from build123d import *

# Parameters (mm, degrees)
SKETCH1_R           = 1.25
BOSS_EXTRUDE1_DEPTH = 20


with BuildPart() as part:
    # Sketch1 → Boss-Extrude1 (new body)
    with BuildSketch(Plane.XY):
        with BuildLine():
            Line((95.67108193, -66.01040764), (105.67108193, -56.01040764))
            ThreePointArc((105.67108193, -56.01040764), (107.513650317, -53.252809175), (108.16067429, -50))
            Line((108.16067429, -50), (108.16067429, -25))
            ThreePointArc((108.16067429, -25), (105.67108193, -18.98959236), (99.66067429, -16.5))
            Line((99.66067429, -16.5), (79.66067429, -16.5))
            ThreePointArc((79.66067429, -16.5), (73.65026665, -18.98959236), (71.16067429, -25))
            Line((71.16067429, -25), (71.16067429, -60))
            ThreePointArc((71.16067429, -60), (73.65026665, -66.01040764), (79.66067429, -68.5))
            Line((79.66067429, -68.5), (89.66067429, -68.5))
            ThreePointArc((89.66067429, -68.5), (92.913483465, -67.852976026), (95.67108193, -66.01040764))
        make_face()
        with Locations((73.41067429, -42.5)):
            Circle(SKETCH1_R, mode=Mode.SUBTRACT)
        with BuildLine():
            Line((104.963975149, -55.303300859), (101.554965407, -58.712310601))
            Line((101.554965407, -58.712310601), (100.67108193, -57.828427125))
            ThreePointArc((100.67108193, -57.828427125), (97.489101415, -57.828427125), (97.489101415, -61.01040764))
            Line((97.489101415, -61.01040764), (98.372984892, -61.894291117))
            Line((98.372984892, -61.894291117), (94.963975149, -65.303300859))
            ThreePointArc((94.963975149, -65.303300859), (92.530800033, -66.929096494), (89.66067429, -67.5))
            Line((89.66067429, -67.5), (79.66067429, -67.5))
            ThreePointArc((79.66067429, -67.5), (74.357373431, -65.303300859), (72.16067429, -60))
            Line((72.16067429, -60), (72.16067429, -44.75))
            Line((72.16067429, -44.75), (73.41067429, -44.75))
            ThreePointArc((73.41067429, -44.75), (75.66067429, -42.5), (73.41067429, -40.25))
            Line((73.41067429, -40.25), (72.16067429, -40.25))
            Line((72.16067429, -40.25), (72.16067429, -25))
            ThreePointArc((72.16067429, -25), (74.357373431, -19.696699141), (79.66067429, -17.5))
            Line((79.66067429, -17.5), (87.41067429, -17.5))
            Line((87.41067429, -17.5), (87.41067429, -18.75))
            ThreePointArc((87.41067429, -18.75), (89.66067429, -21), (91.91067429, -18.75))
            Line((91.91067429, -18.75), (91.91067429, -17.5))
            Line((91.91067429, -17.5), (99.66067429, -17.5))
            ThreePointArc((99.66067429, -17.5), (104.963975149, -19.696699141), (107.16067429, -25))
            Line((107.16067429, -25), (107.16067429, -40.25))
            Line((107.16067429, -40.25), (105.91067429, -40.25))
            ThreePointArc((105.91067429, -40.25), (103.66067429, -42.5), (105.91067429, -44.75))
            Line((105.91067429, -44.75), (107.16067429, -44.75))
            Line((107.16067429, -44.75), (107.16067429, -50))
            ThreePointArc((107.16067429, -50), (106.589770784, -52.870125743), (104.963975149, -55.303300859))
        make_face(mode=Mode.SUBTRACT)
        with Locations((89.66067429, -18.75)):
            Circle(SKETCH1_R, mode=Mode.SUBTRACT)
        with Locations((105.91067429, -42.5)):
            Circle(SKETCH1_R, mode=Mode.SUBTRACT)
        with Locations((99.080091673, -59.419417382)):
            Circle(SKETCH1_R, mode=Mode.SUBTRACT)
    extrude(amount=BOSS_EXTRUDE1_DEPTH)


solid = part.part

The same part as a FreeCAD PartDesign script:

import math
import FreeCAD as App
import Part
import Sketcher

V = App.Vector

doc = App.newDocument("Part")
body = doc.addObject("PartDesign::Body", "Body")

# Sketch on XY plane
sketch1 = body.newObject("Sketcher::SketchObject", "Sketch")
sketch1.AttachmentSupport = (doc.getObject("XY_Plane"), [""])
sketch1.MapMode = "FlatFace"
sketch1.addGeometry(Part.LineSegment(V(95.671082, -66.010408, 0), V(105.671082, -56.010408, 0)), False)
sketch1.addGeometry(Part.ArcOfCircle(Part.Circle(V(99.660674, -50, 0), V(0, 0, 1), 8.5), math.radians(-45), math.radians(0)), False)
sketch1.addGeometry(Part.LineSegment(V(108.160674, -50, 0), V(108.160674, -25, 0)), False)
sketch1.addGeometry(Part.ArcOfCircle(Part.Circle(V(99.660674, -25, 0), V(0, 0, 1), 8.5), math.radians(0), math.radians(90)), False)
sketch1.addGeometry(Part.LineSegment(V(99.660674, -16.5, 0), V(79.660674, -16.5, 0)), False)
sketch1.addGeometry(Part.ArcOfCircle(Part.Circle(V(79.660674, -25, 0), V(0, 0, 1), 8.5), math.radians(90), math.radians(180)), False)
sketch1.addGeometry(Part.LineSegment(V(71.160674, -25, 0), V(71.160674, -60, 0)), False)
sketch1.addGeometry(Part.ArcOfCircle(Part.Circle(V(79.660674, -60, 0), V(0, 0, 1), 8.5), math.radians(180), math.radians(270)), False)
sketch1.addGeometry(Part.LineSegment(V(79.660674, -68.5, 0), V(89.660674, -68.5, 0)), False)
sketch1.addGeometry(Part.ArcOfCircle(Part.Circle(V(89.660674, -60, 0), V(0, 0, 1), 8.5), math.radians(-90), math.radians(-45)), False)
sketch1.addGeometry(Part.Circle(V(73.410674, -42.5, 0), V(0, 0, 1), 1.25), False)
sketch1.addGeometry(Part.Circle(V(99.080092, -59.419417, 0), V(0, 0, 1), 1.25), False)
sketch1.addGeometry(Part.Circle(V(105.910674, -42.5, 0), V(0, 0, 1), 1.25), False)
sketch1.addGeometry(Part.ArcOfCircle(Part.Circle(V(99.660674, -50, 0), V(0, 0, 1), 7.5), math.radians(-45), math.radians(0)), False)
sketch1.addGeometry(Part.LineSegment(V(104.963975, -55.303301, 0), V(101.554965, -58.712311, 0)), False)
sketch1.addGeometry(Part.LineSegment(V(101.554965, -58.712311, 0), V(100.671082, -57.828427, 0)), False)
sketch1.addGeometry(Part.ArcOfCircle(Part.Circle(V(99.080092, -59.419417, 0), V(0, 0, 1), 2.25), math.radians(45), math.radians(225)), False)
sketch1.addGeometry(Part.LineSegment(V(97.489101, -61.010408, 0), V(98.372985, -61.894291, 0)), False)
sketch1.addGeometry(Part.LineSegment(V(98.372985, -61.894291, 0), V(94.963975, -65.303301, 0)), False)
sketch1.addGeometry(Part.ArcOfCircle(Part.Circle(V(89.660674, -60, 0), V(0, 0, 1), 7.5), math.radians(-90), math.radians(-45)), False)
sketch1.addGeometry(Part.LineSegment(V(89.660674, -67.5, 0), V(79.660674, -67.5, 0)), False)
sketch1.addGeometry(Part.ArcOfCircle(Part.Circle(V(79.660674, -60, 0), V(0, 0, 1), 7.5), math.radians(180), math.radians(270)), False)
sketch1.addGeometry(Part.LineSegment(V(72.160674, -60, 0), V(72.160674, -44.75, 0)), False)
sketch1.addGeometry(Part.LineSegment(V(72.160674, -44.75, 0), V(73.410674, -44.75, 0)), False)
sketch1.addGeometry(Part.ArcOfCircle(Part.Circle(V(73.410674, -42.5, 0), V(0, 0, 1), 2.25), math.radians(-90), math.radians(90)), False)
sketch1.addGeometry(Part.LineSegment(V(73.410674, -40.25, 0), V(72.160674, -40.25, 0)), False)
sketch1.addGeometry(Part.LineSegment(V(72.160674, -40.25, 0), V(72.160674, -25, 0)), False)
sketch1.addGeometry(Part.ArcOfCircle(Part.Circle(V(79.660674, -25, 0), V(0, 0, 1), 7.5), math.radians(90), math.radians(180)), False)
sketch1.addGeometry(Part.LineSegment(V(79.660674, -17.5, 0), V(87.410674, -17.5, 0)), False)
sketch1.addGeometry(Part.LineSegment(V(87.410674, -17.5, 0), V(87.410674, -18.75, 0)), False)
sketch1.addGeometry(Part.ArcOfCircle(Part.Circle(V(89.660674, -18.75, 0), V(0, 0, 1), 2.25), math.radians(180), math.radians(360)), False)
sketch1.addGeometry(Part.LineSegment(V(91.910674, -18.75, 0), V(91.910674, -17.5, 0)), False)
sketch1.addGeometry(Part.LineSegment(V(91.910674, -17.5, 0), V(99.660674, -17.5, 0)), False)
sketch1.addGeometry(Part.ArcOfCircle(Part.Circle(V(99.660674, -25, 0), V(0, 0, 1), 7.5), math.radians(0), math.radians(90)), False)
sketch1.addGeometry(Part.LineSegment(V(107.160674, -25, 0), V(107.160674, -40.25, 0)), False)
sketch1.addGeometry(Part.LineSegment(V(107.160674, -40.25, 0), V(105.910674, -40.25, 0)), False)
sketch1.addGeometry(Part.ArcOfCircle(Part.Circle(V(105.910674, -42.5, 0), V(0, 0, 1), 2.25), math.radians(90), math.radians(270)), False)
sketch1.addGeometry(Part.LineSegment(V(105.910674, -44.75, 0), V(107.160674, -44.75, 0)), False)
sketch1.addGeometry(Part.LineSegment(V(107.160674, -44.75, 0), V(107.160674, -50, 0)), False)
sketch1.addGeometry(Part.Circle(V(89.660674, -18.75, 0), V(0, 0, 1), 1.25), False)
sketch1.addConstraint(Sketcher.Constraint("Tangent", 0, 2, 1, 1))
sketch1.addConstraint(Sketcher.Constraint("Tangent", 1, 2, 2, 1))
sketch1.addConstraint(Sketcher.Constraint("Tangent", 2, 2, 3, 1))
sketch1.addConstraint(Sketcher.Constraint("Tangent", 3, 2, 4, 1))
sketch1.addConstraint(Sketcher.Constraint("Tangent", 4, 2, 5, 1))
sketch1.addConstraint(Sketcher.Constraint("Tangent", 5, 2, 6, 1))
sketch1.addConstraint(Sketcher.Constraint("Tangent", 6, 2, 7, 1))
sketch1.addConstraint(Sketcher.Constraint("Tangent", 7, 2, 8, 1))
sketch1.addConstraint(Sketcher.Constraint("Tangent", 8, 2, 9, 1))
sketch1.addConstraint(Sketcher.Constraint("Tangent", 9, 2, 0, 1))
sketch1.addConstraint(Sketcher.Constraint("Tangent", 13, 1, 14, 1))
sketch1.addConstraint(Sketcher.Constraint("Coincident", 14, 2, 15, 1))
sketch1.addConstraint(Sketcher.Constraint("Tangent", 15, 2, 16, 1))
sketch1.addConstraint(Sketcher.Constraint("Tangent", 16, 2, 17, 1))
sketch1.addConstraint(Sketcher.Constraint("Coincident", 17, 2, 18, 1))
sketch1.addConstraint(Sketcher.Constraint("Tangent", 18, 2, 19, 2))
sketch1.addConstraint(Sketcher.Constraint("Tangent", 19, 1, 20, 1))
sketch1.addConstraint(Sketcher.Constraint("Tangent", 20, 2, 21, 2))
sketch1.addConstraint(Sketcher.Constraint("Tangent", 21, 1, 22, 1))
sketch1.addConstraint(Sketcher.Constraint("Coincident", 22, 2, 23, 1))
sketch1.addConstraint(Sketcher.Constraint("Tangent", 23, 2, 24, 1))
sketch1.addConstraint(Sketcher.Constraint("Tangent", 24, 2, 25, 1))
sketch1.addConstraint(Sketcher.Constraint("Coincident", 25, 2, 26, 1))
sketch1.addConstraint(Sketcher.Constraint("Tangent", 26, 2, 27, 2))
sketch1.addConstraint(Sketcher.Constraint("Tangent", 27, 1, 28, 1))
sketch1.addConstraint(Sketcher.Constraint("Coincident", 28, 2, 29, 1))
sketch1.addConstraint(Sketcher.Constraint("Tangent", 29, 2, 30, 1))
sketch1.addConstraint(Sketcher.Constraint("Tangent", 30, 2, 31, 1))
sketch1.addConstraint(Sketcher.Constraint("Coincident", 31, 2, 32, 1))
sketch1.addConstraint(Sketcher.Constraint("Tangent", 32, 2, 33, 2))
sketch1.addConstraint(Sketcher.Constraint("Tangent", 33, 1, 34, 1))
sketch1.addConstraint(Sketcher.Constraint("Coincident", 34, 2, 35, 1))
sketch1.addConstraint(Sketcher.Constraint("Tangent", 35, 2, 36, 1))
sketch1.addConstraint(Sketcher.Constraint("Tangent", 36, 2, 37, 1))
sketch1.addConstraint(Sketcher.Constraint("Coincident", 37, 2, 38, 1))
sketch1.addConstraint(Sketcher.Constraint("Tangent", 38, 2, 13, 2))
sketch1.addConstraint(Sketcher.Constraint("Vertical", 2))
sketch1.addConstraint(Sketcher.Constraint("Horizontal", 4))
sketch1.addConstraint(Sketcher.Constraint("Vertical", 6))
sketch1.addConstraint(Sketcher.Constraint("Horizontal", 8))
sketch1.addConstraint(Sketcher.Constraint("Horizontal", 20))
sketch1.addConstraint(Sketcher.Constraint("Vertical", 22))
sketch1.addConstraint(Sketcher.Constraint("Horizontal", 23))
sketch1.addConstraint(Sketcher.Constraint("Horizontal", 25))
sketch1.addConstraint(Sketcher.Constraint("Vertical", 26))
sketch1.addConstraint(Sketcher.Constraint("Horizontal", 28))
sketch1.addConstraint(Sketcher.Constraint("Vertical", 29))
sketch1.addConstraint(Sketcher.Constraint("Vertical", 31))
sketch1.addConstraint(Sketcher.Constraint("Horizontal", 32))
sketch1.addConstraint(Sketcher.Constraint("Vertical", 34))
sketch1.addConstraint(Sketcher.Constraint("Horizontal", 35))
sketch1.addConstraint(Sketcher.Constraint("Horizontal", 37))
sketch1.addConstraint(Sketcher.Constraint("Vertical", 38))
sketch1.addConstraint(Sketcher.Constraint("Coincident", 13, 3, 1, 3))
sketch1.addConstraint(Sketcher.Constraint("Coincident", 16, 3, 11, 3))
sketch1.addConstraint(Sketcher.Constraint("Coincident", 19, 3, 9, 3))
sketch1.addConstraint(Sketcher.Constraint("Coincident", 21, 3, 7, 3))
sketch1.addConstraint(Sketcher.Constraint("Coincident", 24, 3, 10, 3))
sketch1.addConstraint(Sketcher.Constraint("Coincident", 27, 3, 5, 3))
sketch1.addConstraint(Sketcher.Constraint("Coincident", 33, 3, 3, 3))
sketch1.addConstraint(Sketcher.Constraint("Coincident", 36, 3, 12, 3))
sketch1.addConstraint(Sketcher.Constraint("Coincident", 39, 3, 30, 3))
sketch1.addConstraint(Sketcher.Constraint("Equal", 1, 3))
sketch1.addConstraint(Sketcher.Constraint("Equal", 3, 5))
sketch1.addConstraint(Sketcher.Constraint("Equal", 5, 7))
sketch1.addConstraint(Sketcher.Constraint("Equal", 7, 9))
sketch1.addConstraint(Sketcher.Constraint("Equal", 10, 11))
sketch1.addConstraint(Sketcher.Constraint("Equal", 11, 12))
sketch1.addConstraint(Sketcher.Constraint("Equal", 13, 19))
sketch1.addConstraint(Sketcher.Constraint("Equal", 16, 24))
sketch1.addConstraint(Sketcher.Constraint("Equal", 21, 27))
sketch1.addConstraint(Sketcher.Constraint("Equal", 24, 30))
sketch1.addConstraint(Sketcher.Constraint("Equal", 27, 33))
sketch1.addConstraint(Sketcher.Constraint("Equal", 30, 36))
sketch1.addConstraint(Sketcher.Constraint("Equal", 12, 39))
sketch1.addConstraint(Sketcher.Constraint("Parallel", 0, 14))
sketch1.addConstraint(Sketcher.Constraint("Perpendicular", 14, 15))
sketch1.addConstraint(Sketcher.Constraint("Parallel", 15, 17))
sketch1.addConstraint(Sketcher.Constraint("Perpendicular", 17, 18))
sketch1.addConstraint(Sketcher.Constraint("Horizontal", 10, 3, 12, 3))
sketch1.addConstraint(Sketcher.Constraint("Vertical", 19, 3, 30, 3))
sketch1.addConstraint(Sketcher.Constraint("Equal", 28, 32))
sketch1.addConstraint(Sketcher.Constraint("Equal", 25, 35))
sketch1.addConstraint(Sketcher.Constraint("Equal", 22, 26))
sketch1.addConstraint(Sketcher.Constraint("Equal", 37, 29))
sketch1.addConstraint(Sketcher.Constraint("Equal", 14, 18))
sketch1.addConstraint(Sketcher.Constraint("Diameter", 10, 2.5))
sketch1.addConstraint(Sketcher.Constraint("Radius", 1, 8.5))
sketch1.addConstraint(Sketcher.Constraint("Radius", 13, 7.5))
sketch1.addConstraint(Sketcher.Constraint("DistanceX", 4, 2, 4, 1, 20.0))
sketch1.addConstraint(Sketcher.Constraint("DistanceY", 2, 1, 2, 2, 25.0))
sketch1.addConstraint(Sketcher.Constraint("DistanceY", 6, 2, 6, 1, 35.0))
sketch1.addConstraint(Sketcher.Constraint("Radius", 16, 2.25))
sketch1.addConstraint(Sketcher.Constraint("DistanceY", 1, 3, -1, 1, 50.0))
sketch1.addConstraint(Sketcher.Constraint("DistanceX", 15, 2, 0, 2, 5.0))
sketch1.addConstraint(Sketcher.Constraint("DistanceX", 23, 1, 23, 2, 1.25))
sketch1.addConstraint(Sketcher.Constraint("DistanceX", -1, 1, 16, 2, 97.489101))
pad1 = body.newObject("PartDesign::Pad", "Pad")
pad1.Profile = sketch1
pad1.Length = 20

doc.recompute()
